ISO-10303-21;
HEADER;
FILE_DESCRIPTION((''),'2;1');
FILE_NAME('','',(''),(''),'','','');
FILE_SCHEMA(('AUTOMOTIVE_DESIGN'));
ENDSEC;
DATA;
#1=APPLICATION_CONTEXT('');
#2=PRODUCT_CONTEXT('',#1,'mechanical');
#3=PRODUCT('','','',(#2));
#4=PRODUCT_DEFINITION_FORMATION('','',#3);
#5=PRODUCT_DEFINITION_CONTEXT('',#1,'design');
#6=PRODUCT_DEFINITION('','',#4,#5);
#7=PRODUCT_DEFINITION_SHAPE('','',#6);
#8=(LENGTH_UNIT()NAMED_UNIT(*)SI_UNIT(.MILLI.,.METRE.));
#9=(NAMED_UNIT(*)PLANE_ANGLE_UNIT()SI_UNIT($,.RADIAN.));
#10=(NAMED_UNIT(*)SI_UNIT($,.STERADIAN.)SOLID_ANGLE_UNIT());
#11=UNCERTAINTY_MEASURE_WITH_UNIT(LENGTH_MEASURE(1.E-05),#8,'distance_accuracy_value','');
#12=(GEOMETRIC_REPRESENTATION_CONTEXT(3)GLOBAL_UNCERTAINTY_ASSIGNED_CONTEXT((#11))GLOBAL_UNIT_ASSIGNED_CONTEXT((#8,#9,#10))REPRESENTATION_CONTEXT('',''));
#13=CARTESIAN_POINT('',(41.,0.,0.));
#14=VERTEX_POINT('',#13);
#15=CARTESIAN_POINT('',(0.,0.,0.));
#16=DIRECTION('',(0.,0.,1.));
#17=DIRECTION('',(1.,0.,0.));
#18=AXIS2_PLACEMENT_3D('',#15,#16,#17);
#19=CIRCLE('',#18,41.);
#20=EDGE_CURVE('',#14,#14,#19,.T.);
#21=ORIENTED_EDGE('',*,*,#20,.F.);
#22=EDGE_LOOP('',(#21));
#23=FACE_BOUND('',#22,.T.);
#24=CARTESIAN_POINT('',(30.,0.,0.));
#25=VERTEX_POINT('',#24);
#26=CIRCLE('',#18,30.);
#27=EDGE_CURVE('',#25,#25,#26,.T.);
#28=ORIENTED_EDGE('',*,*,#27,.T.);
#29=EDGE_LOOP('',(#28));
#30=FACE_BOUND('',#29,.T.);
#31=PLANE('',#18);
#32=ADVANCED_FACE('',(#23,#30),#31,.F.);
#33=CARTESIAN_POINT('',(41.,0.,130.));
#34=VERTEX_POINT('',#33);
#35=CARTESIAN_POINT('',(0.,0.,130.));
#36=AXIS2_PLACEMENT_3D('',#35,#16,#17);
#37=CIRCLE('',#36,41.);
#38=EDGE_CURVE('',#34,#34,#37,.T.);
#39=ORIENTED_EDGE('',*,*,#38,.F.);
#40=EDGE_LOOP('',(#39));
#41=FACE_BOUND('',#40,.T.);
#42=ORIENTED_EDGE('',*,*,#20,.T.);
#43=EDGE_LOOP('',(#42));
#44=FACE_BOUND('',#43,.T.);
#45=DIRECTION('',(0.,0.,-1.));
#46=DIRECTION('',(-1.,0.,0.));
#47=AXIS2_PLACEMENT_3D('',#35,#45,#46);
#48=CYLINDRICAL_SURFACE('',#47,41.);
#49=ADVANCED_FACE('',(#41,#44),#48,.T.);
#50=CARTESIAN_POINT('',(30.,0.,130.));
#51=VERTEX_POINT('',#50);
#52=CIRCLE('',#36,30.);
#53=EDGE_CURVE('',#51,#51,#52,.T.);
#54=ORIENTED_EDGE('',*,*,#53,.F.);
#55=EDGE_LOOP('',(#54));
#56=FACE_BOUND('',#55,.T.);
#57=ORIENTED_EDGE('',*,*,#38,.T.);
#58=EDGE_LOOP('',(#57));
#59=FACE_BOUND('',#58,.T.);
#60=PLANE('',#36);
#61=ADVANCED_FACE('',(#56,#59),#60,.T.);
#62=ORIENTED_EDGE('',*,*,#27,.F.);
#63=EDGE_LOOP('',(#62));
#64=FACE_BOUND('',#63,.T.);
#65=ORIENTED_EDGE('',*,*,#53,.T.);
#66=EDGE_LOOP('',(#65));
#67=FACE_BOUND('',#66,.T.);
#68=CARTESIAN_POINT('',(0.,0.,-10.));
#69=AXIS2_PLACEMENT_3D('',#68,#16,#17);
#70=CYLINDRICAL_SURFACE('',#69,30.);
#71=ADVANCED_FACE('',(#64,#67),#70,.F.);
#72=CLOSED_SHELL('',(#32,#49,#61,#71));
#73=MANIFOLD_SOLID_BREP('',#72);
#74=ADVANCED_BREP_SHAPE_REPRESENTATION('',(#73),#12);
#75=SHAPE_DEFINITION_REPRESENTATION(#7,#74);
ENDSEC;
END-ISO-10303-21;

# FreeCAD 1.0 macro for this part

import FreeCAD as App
import Part
import Sketcher

doc = App.newDocument("Part")
body = doc.addObject("PartDesign::Body", "Body")

# Sketch on XY plane
sketch1 = doc.addObject("Sketcher::SketchObject", "Sketch")
body.addObject(sketch1)
sketch1.AttachmentSupport = (doc.XY_Plane, [""])
sketch1.MapMode = "FlatFace"
sketch1.addGeometry(Part.Circle(App.Vector(0, 0, 0), App.Vector(0, 0, 1), 41), False)
sketch1.addConstraint(Sketcher.Constraint("Coincident", 0, 3, -1, 1))
sketch1.addConstraint(Sketcher.Constraint("Diameter", 0, 82.0))
pad1 = doc.addObject("PartDesign::Pad", "Pad")
body.addObject(pad1)
pad1.Profile = sketch1
pad1.Length = 130

# Sketch on XY plane
sketch2 = doc.addObject("Sketcher::SketchObject", "Sketch001")
body.addObject(sketch2)
sketch2.AttachmentSupport = (doc.XY_Plane, [""])
sketch2.MapMode = "FlatFace"
sketch2.AttachmentOffset = App.Placement(App.Vector(0, 0, 130), App.Rotation())
sketch2.addGeometry(Part.Circle(App.Vector(0, 0, 0), App.Vector(0, 0, 1), 30), False)
sketch2.addConstraint(Sketcher.Constraint("Coincident", 0, 3, -1, 1))
sketch2.addConstraint(Sketcher.Constraint("Diameter", 0, 60.0))
pocket1 = doc.addObject("PartDesign::Pocket", "Pocket")
body.addObject(pocket1)
pocket1.Profile = sketch2
pocket1.Length = 140

doc.recompute()
